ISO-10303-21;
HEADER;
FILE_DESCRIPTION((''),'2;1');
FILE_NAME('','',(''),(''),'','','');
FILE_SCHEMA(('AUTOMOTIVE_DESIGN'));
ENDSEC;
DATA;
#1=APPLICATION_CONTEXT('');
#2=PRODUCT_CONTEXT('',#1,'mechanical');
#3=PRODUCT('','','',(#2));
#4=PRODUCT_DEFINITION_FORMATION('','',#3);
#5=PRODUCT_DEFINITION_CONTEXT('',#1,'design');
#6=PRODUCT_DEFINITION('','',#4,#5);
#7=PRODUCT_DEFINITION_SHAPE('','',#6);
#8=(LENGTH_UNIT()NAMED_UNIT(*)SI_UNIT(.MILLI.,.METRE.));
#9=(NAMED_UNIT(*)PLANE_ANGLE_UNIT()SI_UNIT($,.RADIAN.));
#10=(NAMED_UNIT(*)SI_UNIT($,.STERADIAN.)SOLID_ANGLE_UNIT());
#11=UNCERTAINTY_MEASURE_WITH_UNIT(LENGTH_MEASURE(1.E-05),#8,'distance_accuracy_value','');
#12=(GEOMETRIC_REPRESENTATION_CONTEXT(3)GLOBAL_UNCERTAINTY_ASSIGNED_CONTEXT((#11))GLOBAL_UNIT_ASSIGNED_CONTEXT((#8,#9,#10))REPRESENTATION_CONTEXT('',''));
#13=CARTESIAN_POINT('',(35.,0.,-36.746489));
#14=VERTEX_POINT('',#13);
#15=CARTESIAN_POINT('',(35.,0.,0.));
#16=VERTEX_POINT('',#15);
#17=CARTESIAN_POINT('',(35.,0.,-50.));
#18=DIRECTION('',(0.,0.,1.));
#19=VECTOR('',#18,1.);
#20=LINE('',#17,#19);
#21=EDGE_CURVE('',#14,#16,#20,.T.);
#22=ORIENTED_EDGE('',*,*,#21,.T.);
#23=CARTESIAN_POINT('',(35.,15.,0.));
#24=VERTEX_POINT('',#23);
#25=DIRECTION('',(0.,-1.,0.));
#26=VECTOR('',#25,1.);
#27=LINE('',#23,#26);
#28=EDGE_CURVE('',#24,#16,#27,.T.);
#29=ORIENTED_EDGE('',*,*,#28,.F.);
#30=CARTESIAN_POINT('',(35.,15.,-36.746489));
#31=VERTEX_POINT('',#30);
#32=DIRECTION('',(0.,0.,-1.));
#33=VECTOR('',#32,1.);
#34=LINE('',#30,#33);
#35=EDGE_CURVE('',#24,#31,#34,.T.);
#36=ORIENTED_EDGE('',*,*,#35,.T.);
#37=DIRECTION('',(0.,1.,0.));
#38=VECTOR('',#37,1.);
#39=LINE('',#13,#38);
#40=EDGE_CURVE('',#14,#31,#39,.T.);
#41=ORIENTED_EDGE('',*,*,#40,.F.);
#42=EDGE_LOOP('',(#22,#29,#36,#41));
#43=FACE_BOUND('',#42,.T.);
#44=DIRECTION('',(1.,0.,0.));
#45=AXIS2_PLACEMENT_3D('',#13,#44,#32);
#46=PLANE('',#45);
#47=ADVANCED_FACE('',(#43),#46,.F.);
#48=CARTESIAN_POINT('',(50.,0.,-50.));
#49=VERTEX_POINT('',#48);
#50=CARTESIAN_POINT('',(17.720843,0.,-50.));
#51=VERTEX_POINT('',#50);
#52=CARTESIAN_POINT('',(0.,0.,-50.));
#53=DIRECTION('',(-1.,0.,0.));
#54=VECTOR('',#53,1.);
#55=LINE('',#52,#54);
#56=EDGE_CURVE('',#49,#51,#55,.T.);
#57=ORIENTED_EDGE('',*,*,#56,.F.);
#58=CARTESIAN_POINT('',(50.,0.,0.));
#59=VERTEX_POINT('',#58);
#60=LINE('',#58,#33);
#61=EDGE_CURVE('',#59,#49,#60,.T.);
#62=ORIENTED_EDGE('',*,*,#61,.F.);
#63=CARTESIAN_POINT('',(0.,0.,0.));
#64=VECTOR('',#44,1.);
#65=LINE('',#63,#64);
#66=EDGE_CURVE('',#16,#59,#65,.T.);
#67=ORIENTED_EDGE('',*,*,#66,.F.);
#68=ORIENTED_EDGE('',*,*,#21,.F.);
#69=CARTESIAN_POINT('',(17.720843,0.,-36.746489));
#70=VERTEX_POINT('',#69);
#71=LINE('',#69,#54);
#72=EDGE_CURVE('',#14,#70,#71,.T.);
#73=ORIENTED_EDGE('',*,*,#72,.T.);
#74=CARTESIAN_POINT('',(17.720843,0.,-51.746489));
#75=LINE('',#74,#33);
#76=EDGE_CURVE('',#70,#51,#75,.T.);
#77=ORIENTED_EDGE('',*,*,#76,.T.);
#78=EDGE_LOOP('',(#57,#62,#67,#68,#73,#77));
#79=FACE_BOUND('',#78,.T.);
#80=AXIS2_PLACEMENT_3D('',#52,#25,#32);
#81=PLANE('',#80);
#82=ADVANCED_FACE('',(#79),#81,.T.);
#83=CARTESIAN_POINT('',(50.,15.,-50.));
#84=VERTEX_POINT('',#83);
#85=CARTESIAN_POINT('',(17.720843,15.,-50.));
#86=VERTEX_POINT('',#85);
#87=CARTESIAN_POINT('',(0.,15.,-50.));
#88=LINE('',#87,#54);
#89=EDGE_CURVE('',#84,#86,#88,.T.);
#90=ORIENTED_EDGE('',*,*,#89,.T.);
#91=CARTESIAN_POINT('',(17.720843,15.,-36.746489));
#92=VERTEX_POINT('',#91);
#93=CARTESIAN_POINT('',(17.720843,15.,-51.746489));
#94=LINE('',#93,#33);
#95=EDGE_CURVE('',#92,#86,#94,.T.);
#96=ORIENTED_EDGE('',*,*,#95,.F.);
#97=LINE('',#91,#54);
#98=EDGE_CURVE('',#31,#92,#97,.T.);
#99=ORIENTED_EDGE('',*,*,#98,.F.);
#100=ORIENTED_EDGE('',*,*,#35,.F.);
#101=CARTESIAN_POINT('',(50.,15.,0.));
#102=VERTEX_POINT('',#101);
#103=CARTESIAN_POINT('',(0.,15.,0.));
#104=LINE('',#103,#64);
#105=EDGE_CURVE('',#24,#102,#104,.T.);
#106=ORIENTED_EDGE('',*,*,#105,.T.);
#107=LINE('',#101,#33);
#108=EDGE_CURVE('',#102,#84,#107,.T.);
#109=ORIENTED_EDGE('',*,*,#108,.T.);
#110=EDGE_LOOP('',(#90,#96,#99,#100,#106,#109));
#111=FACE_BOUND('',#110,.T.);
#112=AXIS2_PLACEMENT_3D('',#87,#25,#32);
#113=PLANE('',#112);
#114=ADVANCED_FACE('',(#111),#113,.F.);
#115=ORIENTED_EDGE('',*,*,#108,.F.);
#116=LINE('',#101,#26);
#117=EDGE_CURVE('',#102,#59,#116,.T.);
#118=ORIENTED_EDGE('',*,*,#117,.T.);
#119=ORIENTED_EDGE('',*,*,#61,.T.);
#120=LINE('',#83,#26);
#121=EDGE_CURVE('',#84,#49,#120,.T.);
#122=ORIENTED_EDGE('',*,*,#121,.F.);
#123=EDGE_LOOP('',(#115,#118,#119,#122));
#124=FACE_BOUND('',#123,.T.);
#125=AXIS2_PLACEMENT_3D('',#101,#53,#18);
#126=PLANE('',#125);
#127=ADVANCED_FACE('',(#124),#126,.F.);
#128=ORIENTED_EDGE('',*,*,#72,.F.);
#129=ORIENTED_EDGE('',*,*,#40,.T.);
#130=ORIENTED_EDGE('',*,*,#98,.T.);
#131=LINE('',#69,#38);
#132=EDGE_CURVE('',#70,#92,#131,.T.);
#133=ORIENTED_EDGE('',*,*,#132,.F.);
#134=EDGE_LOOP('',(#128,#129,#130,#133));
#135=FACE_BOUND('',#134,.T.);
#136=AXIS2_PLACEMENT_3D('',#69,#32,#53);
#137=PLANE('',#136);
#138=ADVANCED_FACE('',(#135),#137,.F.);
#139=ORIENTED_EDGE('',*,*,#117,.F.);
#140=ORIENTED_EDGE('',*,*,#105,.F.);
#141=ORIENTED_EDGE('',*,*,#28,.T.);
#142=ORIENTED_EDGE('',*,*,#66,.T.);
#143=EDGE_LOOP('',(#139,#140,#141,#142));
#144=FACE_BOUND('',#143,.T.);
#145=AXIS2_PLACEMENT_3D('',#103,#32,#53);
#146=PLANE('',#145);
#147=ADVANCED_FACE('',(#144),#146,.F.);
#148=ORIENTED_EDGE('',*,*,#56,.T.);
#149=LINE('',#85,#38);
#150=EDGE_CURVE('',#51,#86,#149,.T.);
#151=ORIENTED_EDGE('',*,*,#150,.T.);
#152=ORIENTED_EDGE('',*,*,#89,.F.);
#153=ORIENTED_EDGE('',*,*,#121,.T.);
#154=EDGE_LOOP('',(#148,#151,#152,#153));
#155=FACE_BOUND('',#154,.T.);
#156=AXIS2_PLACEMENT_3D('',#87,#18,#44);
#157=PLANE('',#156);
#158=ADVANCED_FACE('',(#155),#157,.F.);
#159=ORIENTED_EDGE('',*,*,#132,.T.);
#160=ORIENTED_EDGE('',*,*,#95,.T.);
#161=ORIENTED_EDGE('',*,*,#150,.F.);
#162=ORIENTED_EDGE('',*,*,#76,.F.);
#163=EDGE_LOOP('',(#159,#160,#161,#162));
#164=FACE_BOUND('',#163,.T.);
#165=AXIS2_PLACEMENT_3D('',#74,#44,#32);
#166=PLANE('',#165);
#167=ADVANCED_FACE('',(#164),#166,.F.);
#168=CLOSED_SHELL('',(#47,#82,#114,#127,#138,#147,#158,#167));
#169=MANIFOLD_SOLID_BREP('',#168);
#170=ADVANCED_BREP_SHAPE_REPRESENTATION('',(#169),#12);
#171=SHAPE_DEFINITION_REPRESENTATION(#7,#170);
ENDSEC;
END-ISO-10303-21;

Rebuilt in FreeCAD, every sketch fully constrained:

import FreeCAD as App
import Part
import Sketcher


def add_polygon(sketch, points):
    """Adds a closed chain of lines whose ends are joined by coincident constraints."""
    first, n = sketch.GeometryCount, len(points)
    for a, b in zip(points, points[1:] + points[:1]):
        sketch.addGeometry(Part.LineSegment(App.Vector(*a, 0), App.Vector(*b, 0)), False)
    for i in range(n):
        sketch.addConstraint(Sketcher.Constraint("Coincident", first + i, 2, first + (i + 1) % n, 1))

doc = App.newDocument("Part")
body = doc.addObject("PartDesign::Body", "Body")

sketch1 = body.newObject("Sketcher::SketchObject", "Sketch")
sketch1.AttachmentSupport = (doc.getObject("XZ_Plane"), [""])
sketch1.MapMode = "FlatFace"
add_polygon(sketch1, [(0, -50), (0, 0), (50, 0), (50, -50)])
sketch1.addConstraint(Sketcher.Constraint("Vertical", 0))
sketch1.addConstraint(Sketcher.Constraint("Horizontal", 1))
sketch1.addConstraint(Sketcher.Constraint("Vertical", 2))
sketch1.addConstraint(Sketcher.Constraint("Horizontal", 3))
sketch1.addConstraint(Sketcher.Constraint("Coincident", 0, 2, -1, 1))
sketch1.addConstraint(Sketcher.Constraint("Equal", 3, 0))
sketch1.addConstraint(Sketcher.Constraint("DistanceX", 1, 1, 1, 2, 50.0))
pad1 = body.newObject("PartDesign::Pad", "Pad")
pad1.Profile = sketch1
pad1.Length = 15
pad1.Reversed = True

sketch2 = body.newObject("Sketcher::SketchObject", "Sketch001")
sketch2.AttachmentSupport = (doc.getObject("XZ_Plane"), [""])
sketch2.MapMode = "FlatFace"
sketch2.AttachmentOffset = App.Placement(App.Vector(0, 0, -15), App.Rotation())
add_polygon(sketch2, [(18, -37), (18, -52), (-9, -52), (-9, 7), (35, 7), (35, -37)])
sketch2.addConstraint(Sketcher.Constraint("Vertical", 0))
sketch2.addConstraint(Sketcher.Constraint("Horizontal", 1))
sketch2.addConstraint(Sketcher.Constraint("Vertical", 2))
sketch2.addConstraint(Sketcher.Constraint("Horizontal", 3))
sketch2.addConstraint(Sketcher.Constraint("Vertical", 4))
sketch2.addConstraint(Sketcher.Constraint("Horizontal", 5))
sketch2.addConstraint(Sketcher.Constraint("DistanceY", 0, 2, 0, 1, 15.0))
sketch2.addConstraint(Sketcher.Constraint("DistanceX", -1, 1, 3, 2, 35.0))
sketch2.addConstraint(Sketcher.Constraint("DistanceX", 1, 2, 1, 1, 26.403768))
sketch2.addConstraint(Sketcher.Constraint("DistanceX", 3, 1, 3, 2, 43.682925))
sketch2.addConstraint(Sketcher.Constraint("DistanceY", 2, 1, 2, 2, 58.323127))
sketch2.addConstraint(Sketcher.Constraint("DistanceY", 0, 2, -1, 1, 51.746489))
pocket1 = body.newObject("PartDesign::Pocket", "Pocket")
pocket1.Profile = sketch2
pocket1.Type = "ThroughAll"
pocket1.Reversed = True

doc.recompute()
